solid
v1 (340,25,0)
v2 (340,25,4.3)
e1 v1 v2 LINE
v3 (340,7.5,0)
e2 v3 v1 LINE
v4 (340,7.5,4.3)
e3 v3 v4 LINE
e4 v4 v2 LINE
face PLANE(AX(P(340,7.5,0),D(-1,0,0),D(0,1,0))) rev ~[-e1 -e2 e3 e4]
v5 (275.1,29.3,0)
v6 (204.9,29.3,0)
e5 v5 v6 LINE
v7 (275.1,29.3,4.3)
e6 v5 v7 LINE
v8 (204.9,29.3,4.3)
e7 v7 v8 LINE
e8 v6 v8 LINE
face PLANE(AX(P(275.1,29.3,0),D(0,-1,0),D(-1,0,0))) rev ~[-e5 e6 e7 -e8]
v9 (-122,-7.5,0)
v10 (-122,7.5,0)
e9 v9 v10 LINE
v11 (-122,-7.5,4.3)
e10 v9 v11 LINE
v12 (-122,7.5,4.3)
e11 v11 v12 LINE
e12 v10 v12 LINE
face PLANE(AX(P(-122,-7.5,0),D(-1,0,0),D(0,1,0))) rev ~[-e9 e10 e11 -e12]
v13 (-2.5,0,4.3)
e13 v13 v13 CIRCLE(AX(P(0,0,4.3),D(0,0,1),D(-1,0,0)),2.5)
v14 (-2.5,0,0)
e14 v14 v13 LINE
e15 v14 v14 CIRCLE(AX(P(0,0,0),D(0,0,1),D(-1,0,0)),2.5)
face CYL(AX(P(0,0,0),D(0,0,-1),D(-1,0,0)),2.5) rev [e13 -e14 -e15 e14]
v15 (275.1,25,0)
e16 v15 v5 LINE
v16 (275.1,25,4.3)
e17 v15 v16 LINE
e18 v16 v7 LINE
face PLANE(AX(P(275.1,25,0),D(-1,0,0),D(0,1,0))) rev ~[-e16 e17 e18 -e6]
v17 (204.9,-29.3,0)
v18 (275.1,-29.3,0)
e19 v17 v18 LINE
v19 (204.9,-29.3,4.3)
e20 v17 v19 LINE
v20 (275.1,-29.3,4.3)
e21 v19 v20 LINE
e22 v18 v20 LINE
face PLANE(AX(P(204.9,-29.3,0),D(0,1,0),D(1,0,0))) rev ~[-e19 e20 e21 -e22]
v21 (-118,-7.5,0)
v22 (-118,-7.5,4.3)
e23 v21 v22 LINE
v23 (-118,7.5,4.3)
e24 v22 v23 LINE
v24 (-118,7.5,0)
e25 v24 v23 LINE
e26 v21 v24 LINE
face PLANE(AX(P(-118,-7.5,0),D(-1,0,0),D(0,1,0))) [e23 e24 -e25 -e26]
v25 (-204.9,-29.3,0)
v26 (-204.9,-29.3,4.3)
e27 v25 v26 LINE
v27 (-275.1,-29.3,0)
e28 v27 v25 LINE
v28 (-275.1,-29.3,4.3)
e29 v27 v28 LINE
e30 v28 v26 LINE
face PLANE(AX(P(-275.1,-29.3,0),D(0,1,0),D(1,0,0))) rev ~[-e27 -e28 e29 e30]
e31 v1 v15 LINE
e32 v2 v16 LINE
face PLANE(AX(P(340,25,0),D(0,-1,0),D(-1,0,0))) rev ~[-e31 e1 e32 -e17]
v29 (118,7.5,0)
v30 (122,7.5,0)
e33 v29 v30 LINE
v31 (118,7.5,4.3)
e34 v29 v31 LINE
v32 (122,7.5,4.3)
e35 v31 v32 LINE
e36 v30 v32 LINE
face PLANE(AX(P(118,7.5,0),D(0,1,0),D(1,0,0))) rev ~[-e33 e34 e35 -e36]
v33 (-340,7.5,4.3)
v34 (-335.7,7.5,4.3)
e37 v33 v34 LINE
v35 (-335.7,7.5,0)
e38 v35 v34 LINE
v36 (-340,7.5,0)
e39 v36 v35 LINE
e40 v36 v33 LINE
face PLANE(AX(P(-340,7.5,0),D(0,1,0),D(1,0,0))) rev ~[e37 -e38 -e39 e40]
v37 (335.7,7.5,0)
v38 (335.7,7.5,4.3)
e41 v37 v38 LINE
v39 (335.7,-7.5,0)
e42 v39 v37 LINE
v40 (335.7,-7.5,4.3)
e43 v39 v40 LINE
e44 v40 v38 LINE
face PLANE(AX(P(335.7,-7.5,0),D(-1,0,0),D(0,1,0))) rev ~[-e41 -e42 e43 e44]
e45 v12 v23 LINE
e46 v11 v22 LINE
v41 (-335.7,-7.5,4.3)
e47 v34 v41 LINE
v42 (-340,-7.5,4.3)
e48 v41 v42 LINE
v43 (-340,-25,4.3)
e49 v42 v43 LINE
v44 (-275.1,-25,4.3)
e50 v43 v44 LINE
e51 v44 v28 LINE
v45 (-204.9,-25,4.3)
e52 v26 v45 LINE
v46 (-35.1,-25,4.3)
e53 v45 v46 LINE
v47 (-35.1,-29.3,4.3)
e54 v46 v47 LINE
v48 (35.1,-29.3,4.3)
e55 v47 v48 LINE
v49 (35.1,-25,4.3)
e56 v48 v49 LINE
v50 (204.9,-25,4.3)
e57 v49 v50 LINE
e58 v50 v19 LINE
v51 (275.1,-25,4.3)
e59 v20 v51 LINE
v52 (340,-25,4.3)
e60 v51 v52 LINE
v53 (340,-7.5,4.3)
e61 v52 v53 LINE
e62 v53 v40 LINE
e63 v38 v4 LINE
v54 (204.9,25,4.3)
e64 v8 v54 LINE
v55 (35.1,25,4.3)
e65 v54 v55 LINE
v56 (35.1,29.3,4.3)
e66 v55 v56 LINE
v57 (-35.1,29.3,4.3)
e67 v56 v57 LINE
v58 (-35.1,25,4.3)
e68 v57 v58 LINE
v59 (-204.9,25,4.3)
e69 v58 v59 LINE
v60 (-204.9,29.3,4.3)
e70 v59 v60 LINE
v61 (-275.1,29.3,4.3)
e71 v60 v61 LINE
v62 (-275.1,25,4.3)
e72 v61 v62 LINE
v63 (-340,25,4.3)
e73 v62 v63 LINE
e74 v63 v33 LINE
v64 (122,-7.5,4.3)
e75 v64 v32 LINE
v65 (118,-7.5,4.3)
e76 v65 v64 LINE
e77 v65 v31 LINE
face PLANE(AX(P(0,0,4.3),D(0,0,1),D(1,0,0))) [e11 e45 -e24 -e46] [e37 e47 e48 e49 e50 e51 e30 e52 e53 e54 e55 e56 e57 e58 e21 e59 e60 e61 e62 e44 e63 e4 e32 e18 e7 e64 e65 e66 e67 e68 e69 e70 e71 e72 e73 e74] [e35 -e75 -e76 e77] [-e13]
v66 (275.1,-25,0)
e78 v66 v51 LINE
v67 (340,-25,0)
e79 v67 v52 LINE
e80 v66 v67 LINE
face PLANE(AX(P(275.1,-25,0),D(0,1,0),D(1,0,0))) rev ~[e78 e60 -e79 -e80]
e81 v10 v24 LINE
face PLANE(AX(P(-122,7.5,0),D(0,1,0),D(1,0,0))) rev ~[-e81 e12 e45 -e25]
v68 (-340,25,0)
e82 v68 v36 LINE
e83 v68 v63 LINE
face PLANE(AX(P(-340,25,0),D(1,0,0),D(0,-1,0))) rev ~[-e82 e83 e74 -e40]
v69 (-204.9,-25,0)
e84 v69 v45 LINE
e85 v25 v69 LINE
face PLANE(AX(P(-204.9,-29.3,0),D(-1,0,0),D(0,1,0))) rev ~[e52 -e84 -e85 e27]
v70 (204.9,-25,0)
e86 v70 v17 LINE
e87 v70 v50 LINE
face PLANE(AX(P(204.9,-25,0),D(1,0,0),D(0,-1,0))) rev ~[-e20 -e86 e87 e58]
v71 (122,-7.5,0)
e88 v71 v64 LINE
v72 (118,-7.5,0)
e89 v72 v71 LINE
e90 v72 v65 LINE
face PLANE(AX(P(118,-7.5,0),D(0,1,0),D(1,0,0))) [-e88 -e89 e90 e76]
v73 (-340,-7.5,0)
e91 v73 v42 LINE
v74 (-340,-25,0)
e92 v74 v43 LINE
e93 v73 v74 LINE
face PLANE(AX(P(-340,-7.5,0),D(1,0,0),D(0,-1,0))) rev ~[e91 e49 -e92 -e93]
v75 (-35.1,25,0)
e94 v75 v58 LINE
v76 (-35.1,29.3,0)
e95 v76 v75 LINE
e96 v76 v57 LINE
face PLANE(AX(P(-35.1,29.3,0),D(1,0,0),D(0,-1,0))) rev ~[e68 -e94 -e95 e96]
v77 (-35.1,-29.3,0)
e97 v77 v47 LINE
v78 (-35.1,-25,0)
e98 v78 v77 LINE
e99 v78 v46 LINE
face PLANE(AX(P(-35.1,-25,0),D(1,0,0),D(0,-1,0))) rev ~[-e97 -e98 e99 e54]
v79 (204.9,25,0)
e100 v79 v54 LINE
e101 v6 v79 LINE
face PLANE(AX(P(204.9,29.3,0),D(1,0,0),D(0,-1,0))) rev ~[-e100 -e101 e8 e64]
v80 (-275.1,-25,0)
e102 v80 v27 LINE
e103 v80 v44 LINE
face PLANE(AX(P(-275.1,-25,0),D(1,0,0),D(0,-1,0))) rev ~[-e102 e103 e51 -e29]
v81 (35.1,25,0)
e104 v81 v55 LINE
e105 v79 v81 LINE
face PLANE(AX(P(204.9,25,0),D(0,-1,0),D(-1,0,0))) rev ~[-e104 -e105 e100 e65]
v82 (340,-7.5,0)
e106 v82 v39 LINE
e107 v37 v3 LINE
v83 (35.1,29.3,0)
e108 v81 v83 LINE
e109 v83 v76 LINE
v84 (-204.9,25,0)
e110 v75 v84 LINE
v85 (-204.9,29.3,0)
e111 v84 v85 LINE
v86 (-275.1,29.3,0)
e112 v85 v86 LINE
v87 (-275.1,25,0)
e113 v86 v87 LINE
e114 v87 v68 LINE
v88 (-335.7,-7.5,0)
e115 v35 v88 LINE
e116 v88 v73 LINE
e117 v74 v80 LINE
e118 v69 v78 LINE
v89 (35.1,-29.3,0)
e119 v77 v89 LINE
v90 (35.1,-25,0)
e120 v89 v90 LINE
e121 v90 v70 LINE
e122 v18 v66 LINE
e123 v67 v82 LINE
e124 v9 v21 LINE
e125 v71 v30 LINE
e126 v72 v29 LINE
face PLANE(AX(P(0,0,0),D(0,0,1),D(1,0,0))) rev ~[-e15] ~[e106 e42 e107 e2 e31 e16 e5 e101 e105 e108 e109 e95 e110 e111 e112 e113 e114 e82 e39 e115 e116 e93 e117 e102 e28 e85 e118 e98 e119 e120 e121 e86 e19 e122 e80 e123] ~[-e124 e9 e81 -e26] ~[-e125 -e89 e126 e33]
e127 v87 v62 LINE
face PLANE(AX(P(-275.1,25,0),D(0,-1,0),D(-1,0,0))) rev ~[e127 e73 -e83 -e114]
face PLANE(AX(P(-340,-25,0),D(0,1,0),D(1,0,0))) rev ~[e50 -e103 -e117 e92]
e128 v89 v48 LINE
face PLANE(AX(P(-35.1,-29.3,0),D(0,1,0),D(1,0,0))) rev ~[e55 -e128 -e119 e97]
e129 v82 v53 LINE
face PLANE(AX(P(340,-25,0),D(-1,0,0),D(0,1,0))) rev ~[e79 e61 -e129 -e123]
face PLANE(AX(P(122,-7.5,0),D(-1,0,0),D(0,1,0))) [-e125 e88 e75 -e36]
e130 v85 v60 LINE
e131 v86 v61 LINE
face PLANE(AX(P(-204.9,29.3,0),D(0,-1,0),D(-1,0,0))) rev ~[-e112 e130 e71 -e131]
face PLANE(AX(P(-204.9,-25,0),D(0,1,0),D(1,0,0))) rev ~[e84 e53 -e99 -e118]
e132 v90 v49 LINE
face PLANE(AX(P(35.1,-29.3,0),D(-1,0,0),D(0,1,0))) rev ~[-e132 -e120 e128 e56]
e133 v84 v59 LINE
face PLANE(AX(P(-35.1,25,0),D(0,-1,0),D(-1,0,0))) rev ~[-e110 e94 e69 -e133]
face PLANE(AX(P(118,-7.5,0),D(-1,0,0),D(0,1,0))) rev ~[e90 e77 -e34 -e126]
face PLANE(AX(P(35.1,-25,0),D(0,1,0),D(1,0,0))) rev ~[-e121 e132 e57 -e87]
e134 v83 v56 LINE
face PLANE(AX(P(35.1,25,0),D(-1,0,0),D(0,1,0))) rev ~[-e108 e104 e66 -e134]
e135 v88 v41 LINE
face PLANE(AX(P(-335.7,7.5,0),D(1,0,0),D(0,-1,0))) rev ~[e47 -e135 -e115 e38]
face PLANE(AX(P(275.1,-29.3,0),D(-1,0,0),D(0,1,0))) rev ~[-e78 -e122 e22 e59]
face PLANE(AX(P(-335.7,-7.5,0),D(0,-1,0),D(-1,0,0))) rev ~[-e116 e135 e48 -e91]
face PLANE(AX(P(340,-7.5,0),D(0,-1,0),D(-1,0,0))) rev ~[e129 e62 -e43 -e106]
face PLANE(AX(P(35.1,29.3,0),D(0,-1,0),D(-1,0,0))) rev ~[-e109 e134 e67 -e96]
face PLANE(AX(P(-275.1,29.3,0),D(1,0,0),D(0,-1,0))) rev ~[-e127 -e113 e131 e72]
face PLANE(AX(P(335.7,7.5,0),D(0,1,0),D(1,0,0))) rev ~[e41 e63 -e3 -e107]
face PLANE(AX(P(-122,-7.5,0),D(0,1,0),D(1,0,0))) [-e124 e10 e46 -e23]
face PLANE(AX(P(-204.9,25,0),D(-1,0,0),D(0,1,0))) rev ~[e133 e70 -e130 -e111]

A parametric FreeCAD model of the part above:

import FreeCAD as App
import Part
import Sketcher

V = App.Vector
Q = App.Units.Quantity


def add_polygon(sketch, points):
    """Adds a closed chain of lines whose ends are joined by coincident constraints."""
    first, n = sketch.GeometryCount, len(points)
    for a, b in zip(points, points[1:] + points[:1]):
        sketch.addGeometry(Part.LineSegment(App.Vector(*a, 0), App.Vector(*b, 0)), False)
    for i in range(n):
        sketch.addConstraint(Sketcher.Constraint("Coincident", first + i, 2, first + (i + 1) % n, 1))

doc = App.newDocument("Part")
body = doc.addObject("PartDesign::Body", "Body")

sketch1 = body.newObject("Sketcher::SketchObject", "Sketch")
sketch1.AttachmentSupport = (doc.getObject("XY_Plane"), [""])
sketch1.MapMode = "FlatFace"
add_polygon(sketch1, [(-340, -25), (-275.1, -25), (-275.1, -29.3), (-204.9, -29.3), (-204.9, -25), (-35.1, -25), (-35.1, -29.3), (35.1, -29.3), (35.1, -25), (204.9, -25), (204.9, -29.3), (275.1, -29.3), (275.1, -25), (340, -25), (340, -7.5), (335.7, -7.5), (335.7, 7.5), (340, 7.5), (340, 25), (275.1, 25), (275.1, 29.3), (204.9, 29.3), (204.9, 25), (35.1, 25), (35.1, 29.3), (-35.1, 29.3), (-35.1, 25), (-204.9, 25), (-204.9, 29.3), (-275.1, 29.3), (-275.1, 25), (-340, 25), (-340, 7.5), (-335.7, 7.5), (-335.7, -7.5), (-340, -7.5)])
add_polygon(sketch1, [(-118, -7.5), (-122, -7.5), (-122, 7.5), (-118, 7.5)])
sketch1.addGeometry(Part.Circle(V(0, 0, 0), V(0, 0, 1), 2.5), False)
add_polygon(sketch1, [(122, -7.5), (118, -7.5), (118, 7.5), (122, 7.5)])
sketch1.addConstraint([
    Sketcher.Constraint("Horizontal", 0),
    Sketcher.Constraint("Vertical", 1),
    Sketcher.Constraint("Horizontal", 2),
    Sketcher.Constraint("Vertical", 3),
    Sketcher.Constraint("Horizontal", 4),
    Sketcher.Constraint("Vertical", 5),
    Sketcher.Constraint("Horizontal", 6),
    Sketcher.Constraint("Vertical", 7),
    Sketcher.Constraint("Horizontal", 8),
    Sketcher.Constraint("Vertical", 9),
    Sketcher.Constraint("Horizontal", 10),
    Sketcher.Constraint("Vertical", 11),
    Sketcher.Constraint("Horizontal", 12),
    Sketcher.Constraint("Vertical", 13),
    Sketcher.Constraint("Horizontal", 14),
    Sketcher.Constraint("Vertical", 15),
    Sketcher.Constraint("Horizontal", 16),
    Sketcher.Constraint("Vertical", 17),
    Sketcher.Constraint("Horizontal", 18),
    Sketcher.Constraint("Vertical", 19),
    Sketcher.Constraint("Horizontal", 20),
    Sketcher.Constraint("Vertical", 21),
    Sketcher.Constraint("Horizontal", 22),
    Sketcher.Constraint("Vertical", 23),
    Sketcher.Constraint("Horizontal", 24),
    Sketcher.Constraint("Vertical", 25),
    Sketcher.Constraint("Horizontal", 26),
    Sketcher.Constraint("Vertical", 27),
    Sketcher.Constraint("Horizontal", 28),
    Sketcher.Constraint("Vertical", 29),
    Sketcher.Constraint("Horizontal", 30),
    Sketcher.Constraint("Vertical", 31),
    Sketcher.Constraint("Horizontal", 32),
    Sketcher.Constraint("Vertical", 33),
    Sketcher.Constraint("Horizontal", 34),
    Sketcher.Constraint("Vertical", 35),
    Sketcher.Constraint("Horizontal", 36),
    Sketcher.Constraint("Vertical", 37),
    Sketcher.Constraint("Horizontal", 38),
    Sketcher.Constraint("Vertical", 39),
    Sketcher.Constraint("Horizontal", 41),
    Sketcher.Constraint("Vertical", 42),
    Sketcher.Constraint("Horizontal", 43),
    Sketcher.Constraint("Vertical", 44),
    Sketcher.Constraint("Coincident", 40, 3, -1, 1),
    Sketcher.Constraint("Symmetric", 0, 2, 18, 2, -1, 1),
    Sketcher.Constraint("Symmetric", 2, 2, 20, 2, -1, 1),
    Sketcher.Constraint("Symmetric", 4, 2, 22, 2, -1, 1),
    Sketcher.Constraint("Symmetric", 6, 2, 24, 2, -1, 1),
    Sketcher.Constraint("Symmetric", 8, 2, 26, 2, -1, 1),
    Sketcher.Constraint("Symmetric", 10, 2, 28, 2, -1, 1),
    Sketcher.Constraint("Symmetric", 12, 2, 30, 2, -1, 1),
    Sketcher.Constraint("Symmetric", 14, 2, 32, 2, -1, 1),
    Sketcher.Constraint("Symmetric", 16, 2, 34, 2, -1, 1),
    Sketcher.Constraint("Symmetric", 38, 2, 41, 2, -1, 1),
    Sketcher.Constraint("Symmetric", 36, 2, 43, 2, -1, 1),
    Sketcher.Constraint("Symmetric", 4, 2, 7, 2, -2),
    Sketcher.Constraint("Symmetric", 2, 2, 9, 2, -2),
    Sketcher.Constraint("Symmetric", 0, 2, 11, 2, -2),
    Sketcher.Constraint("Symmetric", 16, 2, 31, 2, -2),
    Sketcher.Constraint("Horizontal", 0, 2, 3, 2),
    Sketcher.Constraint("Horizontal", 2, 2, 5, 2),
    Sketcher.Constraint("Horizontal", 34, 2, 36, 2),
    Sketcher.Constraint("Horizontal", 32, 2, 37, 2),
    Sketcher.Constraint("Equal", 2, 6),
    Sketcher.Constraint("Equal", 34, 1),
    Sketcher.Constraint("Diameter", 40, Q("5 mm")),
    Sketcher.Constraint("DistanceX", 36, 2, 36, 1, Q("4 mm")),
    Sketcher.Constraint("DistanceY", 15, 1, 15, 2, Q("15 mm")),
    Sketcher.Constraint("DistanceX", 0, 1, 0, 2, Q("64.9 mm")),
    Sketcher.Constraint("DistanceX", 2, 1, 2, 2, Q("70.2 mm")),
    Sketcher.Constraint("DistanceX", 4, 1, 4, 2, Q("169.8 mm")),
    Sketcher.Constraint("DistanceX", 14, 2, 14, 1, Q("4.3 mm")),
    Sketcher.Constraint("DistanceY", 13, 1, 13, 2, Q("17.5 mm")),
    Sketcher.Constraint("DistanceX", 36, 2, -1, 1, Q("122 mm")),
])
pad1 = body.newObject("PartDesign::Pad", "Pad")
pad1.Profile = sketch1
pad1.Length = 4.3

doc.recompute()
